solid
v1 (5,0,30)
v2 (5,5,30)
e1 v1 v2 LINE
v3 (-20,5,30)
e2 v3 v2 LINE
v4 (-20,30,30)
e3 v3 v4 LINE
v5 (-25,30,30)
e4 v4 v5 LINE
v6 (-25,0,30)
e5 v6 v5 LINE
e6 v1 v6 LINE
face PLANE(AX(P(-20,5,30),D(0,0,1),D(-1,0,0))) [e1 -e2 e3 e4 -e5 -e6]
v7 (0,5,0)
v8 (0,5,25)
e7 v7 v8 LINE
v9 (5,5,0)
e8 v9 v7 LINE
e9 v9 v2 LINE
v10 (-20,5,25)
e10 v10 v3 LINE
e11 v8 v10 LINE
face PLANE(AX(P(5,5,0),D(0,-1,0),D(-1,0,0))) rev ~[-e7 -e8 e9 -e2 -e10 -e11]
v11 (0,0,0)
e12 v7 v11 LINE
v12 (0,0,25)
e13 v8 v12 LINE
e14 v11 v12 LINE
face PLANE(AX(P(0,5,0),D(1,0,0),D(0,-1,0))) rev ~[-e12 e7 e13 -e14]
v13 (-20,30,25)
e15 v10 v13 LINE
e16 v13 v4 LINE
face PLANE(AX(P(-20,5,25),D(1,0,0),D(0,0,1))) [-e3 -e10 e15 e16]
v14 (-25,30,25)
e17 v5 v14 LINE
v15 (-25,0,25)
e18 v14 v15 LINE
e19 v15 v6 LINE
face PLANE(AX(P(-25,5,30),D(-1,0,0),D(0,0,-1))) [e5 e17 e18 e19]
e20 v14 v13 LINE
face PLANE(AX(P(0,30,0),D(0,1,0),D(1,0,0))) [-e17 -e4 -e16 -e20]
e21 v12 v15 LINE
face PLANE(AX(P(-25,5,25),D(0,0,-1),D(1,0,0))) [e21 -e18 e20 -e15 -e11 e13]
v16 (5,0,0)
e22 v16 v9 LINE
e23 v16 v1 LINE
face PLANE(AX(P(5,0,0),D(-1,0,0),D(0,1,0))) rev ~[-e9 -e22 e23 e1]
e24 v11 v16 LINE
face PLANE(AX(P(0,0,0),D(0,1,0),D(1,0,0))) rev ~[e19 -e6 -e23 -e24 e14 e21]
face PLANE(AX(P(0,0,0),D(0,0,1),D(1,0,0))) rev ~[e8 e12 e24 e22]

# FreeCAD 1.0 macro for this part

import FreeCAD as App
import Part
import Sketcher

doc = App.newDocument("Part")
body = doc.addObject("PartDesign::Body", "Body")

# Sketch on XY plane
sketch1 = body.newObject("Sketcher::SketchObject", "Sketch")
sketch1.AttachmentSupport = (doc.getObject("XY_Plane"), [""])
sketch1.MapMode = "FlatFace"
sketch1.addGeometry([
    Part.LineSegment(App.Vector(0, 5, 0), App.Vector(0, 0, 0)),
    Part.LineSegment(App.Vector(0, 0, 0), App.Vector(5, 0, 0)),
    Part.LineSegment(App.Vector(5, 0, 0), App.Vector(5, 5, 0)),
    Part.LineSegment(App.Vector(5, 5, 0), App.Vector(0, 5, 0)),
], False)
sketch1.addConstraint([
    Sketcher.Constraint("Coincident", 0, 2, 1, 1),
    Sketcher.Constraint("Coincident", 1, 2, 2, 1),
    Sketcher.Constraint("Coincident", 2, 2, 3, 1),
    Sketcher.Constraint("Coincident", 3, 2, 0, 1),
    Sketcher.Constraint("Vertical", 0),
    Sketcher.Constraint("Horizontal", 1),
    Sketcher.Constraint("Vertical", 2),
    Sketcher.Constraint("Horizontal", 3),
    Sketcher.Constraint("Coincident", 0, 2, -1, 1),
    Sketcher.Constraint("Equal", 3, 0),
    Sketcher.Constraint("DistanceX", 1, 1, 1, 2, 5.0),
])
pad1 = body.newObject("PartDesign::Pad", "Pad")
pad1.Profile = sketch1
pad1.Length = 30

# Sketch on YZ plane
sketch2 = body.newObject("Sketcher::SketchObject", "Sketch001")
sketch2.AttachmentSupport = (doc.getObject("YZ_Plane"), [""])
sketch2.MapMode = "FlatFace"
sketch2.addGeometry([
    Part.LineSegment(App.Vector(0, 25, 0), App.Vector(0, 30, 0)),
    Part.LineSegment(App.Vector(0, 30, 0), App.Vector(5, 30, 0)),
    Part.LineSegment(App.Vector(5, 30, 0), App.Vector(5, 25, 0)),
    Part.LineSegment(App.Vector(5, 25, 0), App.Vector(0, 25, 0)),
], False)
sketch2.addConstraint([
    Sketcher.Constraint("Coincident", 0, 2, 1, 1),
    Sketcher.Constraint("Coincident", 1, 2, 2, 1),
    Sketcher.Constraint("Coincident", 2, 2, 3, 1),
    Sketcher.Constraint("Coincident", 3, 2, 0, 1),
    Sketcher.Constraint("Vertical", 0),
    Sketcher.Constraint("Horizontal", 1),
    Sketcher.Constraint("Vertical", 2),
    Sketcher.Constraint("Horizontal", 3),
    Sketcher.Constraint("PointOnObject", 0, 2, -2),
    Sketcher.Constraint("Equal", 3, 0),
    Sketcher.Constraint("DistanceX", 1, 1, 1, 2, 5.0),
    Sketcher.Constraint("DistanceY", -1, 1, 0, 2, 30.0),
])
pad2 = body.newObject("PartDesign::Pad", "Pad001")
pad2.Profile = sketch2
pad2.Length = 25
pad2.Reversed = True

# Sketch on XZ plane
sketch3 = body.newObject("Sketcher::SketchObject", "Sketch002")
sketch3.AttachmentSupport = (doc.getObject("XZ_Plane"), [""])
sketch3.MapMode = "FlatFace"
sketch3.AttachmentOffset = App.Placement(App.Vector(0, 0, -5), App.Rotation())
sketch3.addGeometry([
    Part.LineSegment(App.Vector(-25, 25, 0), App.Vector(-25, 30, 0)),
    Part.LineSegment(App.Vector(-25, 30, 0), App.Vector(-20, 30, 0)),
    Part.LineSegment(App.Vector(-20, 30, 0), App.Vector(-20, 25, 0)),
    Part.LineSegment(App.Vector(-20, 25, 0), App.Vector(-25, 25, 0)),
], False)
sketch3.addConstraint([
    Sketcher.Constraint("Coincident", 0, 2, 1, 1),
    Sketcher.Constraint("Coincident", 1, 2, 2, 1),
    Sketcher.Constraint("Coincident", 2, 2, 3, 1),
    Sketcher.Constraint("Coincident", 3, 2, 0, 1),
    Sketcher.Constraint("Vertical", 0),
    Sketcher.Constraint("Horizontal", 1),
    Sketcher.Constraint("Vertical", 2),
    Sketcher.Constraint("Horizontal", 3),
    Sketcher.Constraint("Equal", 3, 0),
    Sketcher.Constraint("DistanceX", 1, 1, 1, 2, 5.0),
    Sketcher.Constraint("DistanceX", 0, 2, -1, 1, 25.0),
    Sketcher.Constraint("DistanceY", -1, 1, 0, 2, 30.0),
])
pad3 = body.newObject("PartDesign::Pad", "Pad002")
pad3.Profile = sketch3
pad3.Length = 25
pad3.Reversed = True

doc.recompute()
